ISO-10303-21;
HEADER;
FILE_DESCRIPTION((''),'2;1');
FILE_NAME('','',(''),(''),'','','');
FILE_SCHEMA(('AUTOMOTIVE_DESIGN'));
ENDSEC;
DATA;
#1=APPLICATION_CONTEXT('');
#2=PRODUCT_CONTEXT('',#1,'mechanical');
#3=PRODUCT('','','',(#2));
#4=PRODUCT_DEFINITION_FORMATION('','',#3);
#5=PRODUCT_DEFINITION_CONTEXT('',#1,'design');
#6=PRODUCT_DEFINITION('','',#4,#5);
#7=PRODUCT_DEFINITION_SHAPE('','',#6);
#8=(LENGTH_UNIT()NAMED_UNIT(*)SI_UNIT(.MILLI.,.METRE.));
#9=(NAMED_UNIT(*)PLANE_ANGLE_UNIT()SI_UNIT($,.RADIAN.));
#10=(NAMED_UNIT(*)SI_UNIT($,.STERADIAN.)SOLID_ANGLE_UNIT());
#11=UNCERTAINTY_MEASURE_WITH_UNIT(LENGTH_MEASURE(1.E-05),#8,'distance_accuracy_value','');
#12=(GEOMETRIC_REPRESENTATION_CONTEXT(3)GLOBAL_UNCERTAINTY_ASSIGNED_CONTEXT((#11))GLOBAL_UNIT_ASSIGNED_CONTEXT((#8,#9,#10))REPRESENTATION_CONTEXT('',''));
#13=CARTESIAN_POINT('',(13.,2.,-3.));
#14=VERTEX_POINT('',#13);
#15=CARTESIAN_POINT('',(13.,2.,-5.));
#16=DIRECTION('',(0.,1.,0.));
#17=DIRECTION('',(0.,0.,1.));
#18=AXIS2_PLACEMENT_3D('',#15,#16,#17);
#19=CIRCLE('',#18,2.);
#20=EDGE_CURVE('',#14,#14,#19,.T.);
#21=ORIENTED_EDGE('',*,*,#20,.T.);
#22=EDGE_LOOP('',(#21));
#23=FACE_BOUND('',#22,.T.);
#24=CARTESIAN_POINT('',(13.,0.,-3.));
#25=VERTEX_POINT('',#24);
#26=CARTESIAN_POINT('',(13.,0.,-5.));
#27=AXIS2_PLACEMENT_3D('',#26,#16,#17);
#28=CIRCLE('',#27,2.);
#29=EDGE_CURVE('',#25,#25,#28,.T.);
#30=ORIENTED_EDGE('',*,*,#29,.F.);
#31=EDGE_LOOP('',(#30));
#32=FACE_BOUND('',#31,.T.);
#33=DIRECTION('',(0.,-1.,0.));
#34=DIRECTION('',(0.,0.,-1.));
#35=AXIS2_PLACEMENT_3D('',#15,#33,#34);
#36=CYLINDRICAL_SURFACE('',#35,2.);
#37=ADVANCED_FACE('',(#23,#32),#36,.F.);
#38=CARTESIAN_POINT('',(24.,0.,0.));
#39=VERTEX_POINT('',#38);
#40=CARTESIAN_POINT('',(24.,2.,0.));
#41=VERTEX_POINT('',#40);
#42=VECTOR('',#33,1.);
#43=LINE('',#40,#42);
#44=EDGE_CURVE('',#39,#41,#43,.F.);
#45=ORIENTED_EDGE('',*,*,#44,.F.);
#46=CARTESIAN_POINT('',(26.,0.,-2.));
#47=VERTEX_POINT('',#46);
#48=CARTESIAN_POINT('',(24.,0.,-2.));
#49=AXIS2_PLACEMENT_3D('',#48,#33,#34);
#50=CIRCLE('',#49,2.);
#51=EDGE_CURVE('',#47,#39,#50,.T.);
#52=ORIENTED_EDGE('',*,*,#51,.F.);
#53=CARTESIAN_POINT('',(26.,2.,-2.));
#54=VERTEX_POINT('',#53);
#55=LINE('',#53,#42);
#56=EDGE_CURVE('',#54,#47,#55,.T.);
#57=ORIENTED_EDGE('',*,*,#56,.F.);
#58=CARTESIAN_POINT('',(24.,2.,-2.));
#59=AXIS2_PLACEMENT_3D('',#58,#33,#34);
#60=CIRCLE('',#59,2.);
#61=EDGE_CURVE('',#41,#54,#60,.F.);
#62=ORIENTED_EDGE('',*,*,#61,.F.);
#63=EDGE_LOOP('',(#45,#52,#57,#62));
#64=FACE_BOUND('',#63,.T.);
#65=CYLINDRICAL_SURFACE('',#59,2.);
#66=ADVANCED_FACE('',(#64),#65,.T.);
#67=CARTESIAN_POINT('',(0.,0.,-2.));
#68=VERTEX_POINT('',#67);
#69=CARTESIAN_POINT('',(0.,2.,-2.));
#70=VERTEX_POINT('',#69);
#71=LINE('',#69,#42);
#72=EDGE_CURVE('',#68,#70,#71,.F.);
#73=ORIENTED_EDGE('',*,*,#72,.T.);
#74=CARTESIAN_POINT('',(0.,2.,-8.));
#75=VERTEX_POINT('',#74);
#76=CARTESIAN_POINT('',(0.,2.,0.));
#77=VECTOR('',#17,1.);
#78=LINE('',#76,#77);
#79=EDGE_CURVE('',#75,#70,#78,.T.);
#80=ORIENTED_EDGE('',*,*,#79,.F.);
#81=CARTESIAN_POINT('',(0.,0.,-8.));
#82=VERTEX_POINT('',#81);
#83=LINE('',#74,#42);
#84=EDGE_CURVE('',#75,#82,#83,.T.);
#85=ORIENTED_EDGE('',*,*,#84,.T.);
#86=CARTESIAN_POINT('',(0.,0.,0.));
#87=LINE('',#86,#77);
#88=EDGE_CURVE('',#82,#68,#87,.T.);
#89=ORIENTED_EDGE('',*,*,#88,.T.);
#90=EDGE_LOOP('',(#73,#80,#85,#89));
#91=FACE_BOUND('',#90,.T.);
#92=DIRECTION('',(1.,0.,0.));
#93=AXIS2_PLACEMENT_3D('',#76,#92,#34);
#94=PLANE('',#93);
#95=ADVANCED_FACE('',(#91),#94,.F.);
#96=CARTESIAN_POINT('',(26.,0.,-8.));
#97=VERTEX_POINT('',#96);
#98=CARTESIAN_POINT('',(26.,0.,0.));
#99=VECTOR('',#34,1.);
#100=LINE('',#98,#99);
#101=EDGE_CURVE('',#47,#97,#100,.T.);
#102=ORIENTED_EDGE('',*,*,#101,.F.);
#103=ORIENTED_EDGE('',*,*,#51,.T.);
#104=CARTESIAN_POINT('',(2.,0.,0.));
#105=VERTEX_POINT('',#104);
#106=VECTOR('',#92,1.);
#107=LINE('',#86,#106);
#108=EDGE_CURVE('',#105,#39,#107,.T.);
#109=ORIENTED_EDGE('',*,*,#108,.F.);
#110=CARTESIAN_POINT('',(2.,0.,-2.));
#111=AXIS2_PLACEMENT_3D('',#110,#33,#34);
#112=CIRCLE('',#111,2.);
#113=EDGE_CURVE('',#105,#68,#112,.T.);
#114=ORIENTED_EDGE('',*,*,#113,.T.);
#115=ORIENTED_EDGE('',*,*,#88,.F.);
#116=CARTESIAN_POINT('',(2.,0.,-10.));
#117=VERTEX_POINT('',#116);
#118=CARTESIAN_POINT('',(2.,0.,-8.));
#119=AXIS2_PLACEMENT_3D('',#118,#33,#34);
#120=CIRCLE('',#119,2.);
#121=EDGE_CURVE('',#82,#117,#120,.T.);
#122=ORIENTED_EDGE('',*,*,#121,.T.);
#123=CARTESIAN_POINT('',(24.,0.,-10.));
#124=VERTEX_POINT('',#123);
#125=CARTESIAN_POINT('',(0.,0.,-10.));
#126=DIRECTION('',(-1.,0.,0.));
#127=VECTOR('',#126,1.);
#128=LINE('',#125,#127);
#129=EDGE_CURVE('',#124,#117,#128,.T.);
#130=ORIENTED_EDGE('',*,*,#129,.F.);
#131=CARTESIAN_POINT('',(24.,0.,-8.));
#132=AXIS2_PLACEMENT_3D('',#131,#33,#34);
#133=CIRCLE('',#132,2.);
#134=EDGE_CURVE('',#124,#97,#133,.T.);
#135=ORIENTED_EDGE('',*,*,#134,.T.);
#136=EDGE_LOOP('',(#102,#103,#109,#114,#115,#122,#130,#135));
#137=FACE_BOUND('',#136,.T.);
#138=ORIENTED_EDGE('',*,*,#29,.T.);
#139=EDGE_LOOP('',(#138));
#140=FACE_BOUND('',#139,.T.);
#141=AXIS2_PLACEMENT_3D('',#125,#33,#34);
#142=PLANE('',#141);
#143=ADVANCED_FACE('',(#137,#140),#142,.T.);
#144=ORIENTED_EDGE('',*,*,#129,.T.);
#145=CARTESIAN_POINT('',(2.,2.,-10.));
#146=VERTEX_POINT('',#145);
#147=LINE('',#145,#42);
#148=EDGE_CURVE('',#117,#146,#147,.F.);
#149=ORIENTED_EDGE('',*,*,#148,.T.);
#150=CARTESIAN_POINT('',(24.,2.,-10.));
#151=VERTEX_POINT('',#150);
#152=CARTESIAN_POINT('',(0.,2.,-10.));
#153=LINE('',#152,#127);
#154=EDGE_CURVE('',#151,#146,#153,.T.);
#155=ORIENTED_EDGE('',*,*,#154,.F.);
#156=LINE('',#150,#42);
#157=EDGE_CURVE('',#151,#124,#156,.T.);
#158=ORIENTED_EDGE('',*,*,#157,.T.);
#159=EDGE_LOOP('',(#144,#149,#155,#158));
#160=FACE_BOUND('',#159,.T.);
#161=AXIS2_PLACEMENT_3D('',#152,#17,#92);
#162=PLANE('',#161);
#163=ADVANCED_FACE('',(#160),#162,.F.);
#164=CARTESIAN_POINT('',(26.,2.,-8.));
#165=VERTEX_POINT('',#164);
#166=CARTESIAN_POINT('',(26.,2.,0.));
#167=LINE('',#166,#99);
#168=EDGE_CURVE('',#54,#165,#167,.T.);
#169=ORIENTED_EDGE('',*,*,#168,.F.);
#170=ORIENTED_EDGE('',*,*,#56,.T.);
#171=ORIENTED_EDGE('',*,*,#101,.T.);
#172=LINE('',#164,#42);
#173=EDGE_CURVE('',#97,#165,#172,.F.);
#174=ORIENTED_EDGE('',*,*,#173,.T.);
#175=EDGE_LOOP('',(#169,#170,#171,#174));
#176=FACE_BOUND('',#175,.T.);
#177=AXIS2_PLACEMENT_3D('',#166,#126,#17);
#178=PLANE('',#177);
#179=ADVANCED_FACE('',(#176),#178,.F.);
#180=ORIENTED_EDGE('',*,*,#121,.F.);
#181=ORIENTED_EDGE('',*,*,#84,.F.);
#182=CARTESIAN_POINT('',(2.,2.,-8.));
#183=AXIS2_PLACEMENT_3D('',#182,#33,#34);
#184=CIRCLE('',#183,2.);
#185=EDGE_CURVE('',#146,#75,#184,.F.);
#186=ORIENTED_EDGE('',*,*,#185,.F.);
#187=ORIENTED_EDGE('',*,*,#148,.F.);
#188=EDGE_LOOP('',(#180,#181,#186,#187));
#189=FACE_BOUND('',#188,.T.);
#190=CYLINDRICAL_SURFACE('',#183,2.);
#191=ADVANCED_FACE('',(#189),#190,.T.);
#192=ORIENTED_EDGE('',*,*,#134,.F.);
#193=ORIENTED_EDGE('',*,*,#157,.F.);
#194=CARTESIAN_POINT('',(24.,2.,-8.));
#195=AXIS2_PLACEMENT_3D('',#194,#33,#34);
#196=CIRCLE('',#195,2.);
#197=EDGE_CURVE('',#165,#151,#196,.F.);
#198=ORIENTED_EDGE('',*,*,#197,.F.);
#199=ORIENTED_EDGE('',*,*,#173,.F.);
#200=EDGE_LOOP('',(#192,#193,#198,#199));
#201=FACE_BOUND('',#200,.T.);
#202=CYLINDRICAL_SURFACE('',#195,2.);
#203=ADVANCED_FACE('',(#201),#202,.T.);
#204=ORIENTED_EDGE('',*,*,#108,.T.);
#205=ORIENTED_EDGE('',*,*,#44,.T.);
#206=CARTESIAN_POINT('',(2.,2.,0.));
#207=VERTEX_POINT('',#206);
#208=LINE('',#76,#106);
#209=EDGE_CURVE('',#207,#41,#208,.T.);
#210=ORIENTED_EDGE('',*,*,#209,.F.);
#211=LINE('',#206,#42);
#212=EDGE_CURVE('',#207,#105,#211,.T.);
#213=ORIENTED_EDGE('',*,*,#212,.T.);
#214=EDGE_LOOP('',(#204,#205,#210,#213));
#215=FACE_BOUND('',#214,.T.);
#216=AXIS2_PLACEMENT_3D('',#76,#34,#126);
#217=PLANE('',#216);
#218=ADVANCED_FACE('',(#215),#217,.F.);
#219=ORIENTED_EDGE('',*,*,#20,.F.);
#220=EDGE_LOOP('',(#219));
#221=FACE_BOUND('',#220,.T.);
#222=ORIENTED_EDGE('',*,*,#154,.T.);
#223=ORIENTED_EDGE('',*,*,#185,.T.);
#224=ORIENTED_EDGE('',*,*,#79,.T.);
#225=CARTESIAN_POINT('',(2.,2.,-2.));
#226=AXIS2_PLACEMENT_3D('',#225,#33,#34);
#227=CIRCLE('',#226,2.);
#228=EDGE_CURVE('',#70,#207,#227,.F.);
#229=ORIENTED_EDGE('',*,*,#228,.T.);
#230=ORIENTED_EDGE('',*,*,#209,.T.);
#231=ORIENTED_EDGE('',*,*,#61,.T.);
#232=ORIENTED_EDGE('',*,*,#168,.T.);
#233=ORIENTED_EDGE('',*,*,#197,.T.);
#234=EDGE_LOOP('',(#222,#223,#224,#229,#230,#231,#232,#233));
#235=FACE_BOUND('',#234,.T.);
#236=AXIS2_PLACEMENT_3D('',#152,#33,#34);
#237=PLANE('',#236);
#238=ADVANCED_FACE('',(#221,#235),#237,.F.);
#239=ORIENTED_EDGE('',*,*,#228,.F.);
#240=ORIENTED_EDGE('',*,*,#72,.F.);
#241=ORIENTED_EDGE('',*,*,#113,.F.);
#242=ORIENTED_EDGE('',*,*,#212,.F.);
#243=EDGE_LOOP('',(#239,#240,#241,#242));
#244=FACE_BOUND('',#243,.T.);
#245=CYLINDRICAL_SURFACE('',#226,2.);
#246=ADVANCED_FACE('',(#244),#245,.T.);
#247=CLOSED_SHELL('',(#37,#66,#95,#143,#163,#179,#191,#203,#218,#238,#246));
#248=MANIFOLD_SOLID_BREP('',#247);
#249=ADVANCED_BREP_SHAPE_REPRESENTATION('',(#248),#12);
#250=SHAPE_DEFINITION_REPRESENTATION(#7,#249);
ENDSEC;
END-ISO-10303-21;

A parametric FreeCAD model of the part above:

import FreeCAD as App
import Part
import Sketcher
from FreeCAD import Vector
Q = App.Units.Quantity


def edges_at(feature, points):
    """Names of the edges that pass closest to the given points."""
    edges = feature.Shape.Edges
    near = lambda p: min(range(len(edges)), key=lambda i: edges[i].distToShape(Part.Vertex(*p))[0])
    return sorted({f"Edge{near(p) + 1}" for p in points})

doc = App.newDocument("Part")
body = doc.addObject("PartDesign::Body", "Body")

sketch1 = doc.addObject("Sketcher::SketchObject", "Sketch")
body.addObject(sketch1)
sketch1.AttachmentSupport = (doc.XZ_Plane, [""])
sketch1.MapMode = "FlatFace"
sketch1.addGeometry(Part.LineSegment(Vector(0, -10, 0), Vector(0, 0, 0)), False)
sketch1.addGeometry(Part.LineSegment(Vector(0, 0, 0), Vector(26, 0, 0)), False)
sketch1.addGeometry(Part.LineSegment(Vector(26, 0, 0), Vector(26, -10, 0)), False)
sketch1.addGeometry(Part.LineSegment(Vector(26, -10, 0), Vector(0, -10, 0)), False)
sketch1.addGeometry(Part.Circle(Vector(13, -5, 0), Vector(0, 0, 1), 2), False)
sketch1.addConstraint(Sketcher.Constraint("Coincident", 0, 2, 1, 1))
sketch1.addConstraint(Sketcher.Constraint("Coincident", 1, 2, 2, 1))
sketch1.addConstraint(Sketcher.Constraint("Coincident", 2, 2, 3, 1))
sketch1.addConstraint(Sketcher.Constraint("Coincident", 3, 2, 0, 1))
sketch1.addConstraint(Sketcher.Constraint("Vertical", 0))
sketch1.addConstraint(Sketcher.Constraint("Horizontal", 1))
sketch1.addConstraint(Sketcher.Constraint("Vertical", 2))
sketch1.addConstraint(Sketcher.Constraint("Horizontal", 3))
sketch1.addConstraint(Sketcher.Constraint("Coincident", 0, 2, -1, 1))
sketch1.addConstraint(Sketcher.Constraint("Diameter", 4, Q("4 mm")))
sketch1.addConstraint(Sketcher.Constraint("DistanceX", 1, 1, 1, 2, Q("26 mm")))
sketch1.addConstraint(Sketcher.Constraint("DistanceY", 0, 1, 0, 2, Q("10 mm")))
sketch1.addConstraint(Sketcher.Constraint("DistanceX", -1, 1, 4, 3, Q("13 mm")))
sketch1.addConstraint(Sketcher.Constraint("DistanceY", 4, 3, -1, 1, Q("5 mm")))
pad1 = doc.addObject("PartDesign::Pad", "Pad")
body.addObject(pad1)
pad1.Profile = sketch1
pad1.Length = 2
pad1.Reversed = True
doc.recompute()

fillet = doc.addObject("PartDesign::Fillet", "Fillet")
body.addObject(fillet)
fillet.Base = (pad1, edges_at(pad1, [
    (0, 1, -10),
    (26, 1, -10),
    (26, 1, 0),
    (0, 1, 0),
]))
fillet.Radius = 2

doc.recompute()
